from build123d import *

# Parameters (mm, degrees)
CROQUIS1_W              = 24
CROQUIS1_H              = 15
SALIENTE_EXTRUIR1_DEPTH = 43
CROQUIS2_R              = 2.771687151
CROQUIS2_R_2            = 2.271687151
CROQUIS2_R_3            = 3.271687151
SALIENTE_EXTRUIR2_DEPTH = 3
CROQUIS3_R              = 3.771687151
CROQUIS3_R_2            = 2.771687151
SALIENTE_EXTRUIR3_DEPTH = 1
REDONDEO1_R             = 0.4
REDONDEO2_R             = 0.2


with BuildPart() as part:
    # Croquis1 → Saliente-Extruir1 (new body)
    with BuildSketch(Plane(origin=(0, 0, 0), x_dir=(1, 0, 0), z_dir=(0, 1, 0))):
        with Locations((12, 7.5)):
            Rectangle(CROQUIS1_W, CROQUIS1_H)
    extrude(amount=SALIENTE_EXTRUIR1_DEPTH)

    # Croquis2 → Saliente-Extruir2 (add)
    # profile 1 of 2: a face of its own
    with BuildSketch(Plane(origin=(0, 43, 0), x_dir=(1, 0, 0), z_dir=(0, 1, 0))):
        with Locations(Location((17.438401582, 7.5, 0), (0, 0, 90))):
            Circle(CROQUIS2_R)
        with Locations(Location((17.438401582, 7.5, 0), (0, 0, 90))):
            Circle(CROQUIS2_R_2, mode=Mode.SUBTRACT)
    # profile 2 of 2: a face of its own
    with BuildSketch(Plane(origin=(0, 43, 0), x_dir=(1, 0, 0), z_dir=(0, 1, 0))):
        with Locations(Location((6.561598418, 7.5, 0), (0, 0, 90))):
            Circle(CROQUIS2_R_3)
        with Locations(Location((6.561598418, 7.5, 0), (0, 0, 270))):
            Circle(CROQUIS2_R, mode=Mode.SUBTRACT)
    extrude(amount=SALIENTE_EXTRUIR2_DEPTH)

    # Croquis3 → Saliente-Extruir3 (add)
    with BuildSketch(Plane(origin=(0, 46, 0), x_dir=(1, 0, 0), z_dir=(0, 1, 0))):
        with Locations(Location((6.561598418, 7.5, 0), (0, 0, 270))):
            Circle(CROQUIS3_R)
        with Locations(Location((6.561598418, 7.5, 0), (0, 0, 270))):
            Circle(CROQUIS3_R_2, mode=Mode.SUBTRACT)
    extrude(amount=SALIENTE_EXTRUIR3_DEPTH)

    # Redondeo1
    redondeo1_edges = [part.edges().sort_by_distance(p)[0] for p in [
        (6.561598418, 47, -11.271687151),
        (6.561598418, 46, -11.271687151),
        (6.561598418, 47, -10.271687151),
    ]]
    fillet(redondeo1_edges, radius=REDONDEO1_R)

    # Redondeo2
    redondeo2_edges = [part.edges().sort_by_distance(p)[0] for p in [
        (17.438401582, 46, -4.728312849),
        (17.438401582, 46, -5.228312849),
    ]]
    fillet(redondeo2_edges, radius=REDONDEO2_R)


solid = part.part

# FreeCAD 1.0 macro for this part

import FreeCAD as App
import Part
import Sketcher
from FreeCAD import Vector
Q = App.Units.Quantity


def edges_at(feature, points):
    """Names of the edges that pass closest to the given points."""
    edges = feature.Shape.Edges
    near = lambda p: min(range(len(edges)), key=lambda i: edges[i].distToShape(Part.Vertex(*p))[0])
    return sorted({f"Edge{near(p) + 1}" for p in points})

doc = App.newDocument("Part")
params = doc.addObject("Spreadsheet::Sheet", "Params")
for row, (alias, value) in enumerate([
    ("sketch1_width", "24 mm"),
    ("sketch1_height", "15 mm"),
    ("pad1_length", "43 mm"),
    ("pad2_length", "3 mm"),
    ("pad3_length", "1 mm"),
    ("fillet_radius", "0.4 mm"),
    ("fillet2_radius", "0.2 mm"),
], start=1):
    params.set(f"A{row}", alias)
    params.set(f"B{row}", "=" + value)
    params.setAlias(f"B{row}", alias)

body = doc.addObject("PartDesign::Body", "Body")

# Sketch on XZ plane
sketch1 = doc.addObject("Sketcher::SketchObject", "Sketch")
body.addObject(sketch1)
sketch1.AttachmentSupport = (doc.XZ_Plane, [""])
sketch1.MapMode = "FlatFace"
sketch1.addGeometry(Part.LineSegment(Vector(0, -15, 0), Vector(0, 0, 0)), False)
sketch1.addGeometry(Part.LineSegment(Vector(0, 0, 0), Vector(24, 0, 0)), False)
sketch1.addGeometry(Part.LineSegment(Vector(24, 0, 0), Vector(24, -15, 0)), False)
sketch1.addGeometry(Part.LineSegment(Vector(24, -15, 0), Vector(0, -15, 0)), False)
sketch1.addConstraint(Sketcher.Constraint("Coincident", 0, 2, 1, 1))
sketch1.addConstraint(Sketcher.Constraint("Coincident", 1, 2, 2, 1))
sketch1.addConstraint(Sketcher.Constraint("Coincident", 2, 2, 3, 1))
sketch1.addConstraint(Sketcher.Constraint("Coincident", 3, 2, 0, 1))
sketch1.addConstraint(Sketcher.Constraint("Vertical", 0))
sketch1.addConstraint(Sketcher.Constraint("Horizontal", 1))
sketch1.addConstraint(Sketcher.Constraint("Vertical", 2))
sketch1.addConstraint(Sketcher.Constraint("Horizontal", 3))
sketch1.addConstraint(Sketcher.Constraint("Coincident", 0, 2, -1, 1))
sketch1.addConstraint(Sketcher.Constraint("DistanceX", 1, 1, 1, 2, Q("24 mm")))
sketch1.addConstraint(Sketcher.Constraint("DistanceY", 0, 1, 0, 2, Q("15 mm")))
sketch1.setExpression("Constraints[9]", "Params.sketch1_width")
sketch1.setExpression("Constraints[10]", "Params.sketch1_height")
pad1 = doc.addObject("PartDesign::Pad", "Pad")
body.addObject(pad1)
pad1.Profile = sketch1
pad1.setExpression("Length", "Params.pad1_length")
pad1.Reversed = True

# Sketch on XZ plane
sketch2 = doc.addObject("Sketcher::SketchObject", "Sketch001")
body.addObject(sketch2)
sketch2.AttachmentSupport = (doc.XZ_Plane, [""])
sketch2.MapMode = "FlatFace"
sketch2.AttachmentOffset = App.Placement(Vector(0, 0, -43), App.Rotation())
sketch2.addGeometry(Part.Circle(Vector(17.438402, -7.5, 0), Vector(0, 0, 1), 2.771687), False)
sketch2.addGeometry(Part.Circle(Vector(17.438402, -7.5, 0), Vector(0, 0, 1), 2.271687), False)
sketch2.addGeometry(Part.Circle(Vector(6.561598, -7.5, 0), Vector(0, 0, 1), 3.271687), False)
sketch2.addGeometry(Part.Circle(Vector(6.561598, -7.5, 0), Vector(0, 0, 1), 2.771687), False)
sketch2.addConstraint(Sketcher.Constraint("Coincident", 1, 3, 0, 3))
sketch2.addConstraint(Sketcher.Constraint("Coincident", 3, 3, 2, 3))
sketch2.addConstraint(Sketcher.Constraint("Equal", 0, 3))
sketch2.addConstraint(Sketcher.Constraint("Horizontal", 1, 3, 2, 3))
sketch2.addConstraint(Sketcher.Constraint("DistanceY", 0, 3, -1, 1, Q("7.5 mm")))
sketch2.addConstraint(Sketcher.Constraint("Diameter", 0, Q("5.543374 mm")))
sketch2.addConstraint(Sketcher.Constraint("Diameter", 1, Q("4.543374 mm")))
sketch2.addConstraint(Sketcher.Constraint("Diameter", 2, Q("6.543374 mm")))
sketch2.addConstraint(Sketcher.Constraint("DistanceX", -1, 1, 0, 3, Q("17.438402 mm")))
sketch2.addConstraint(Sketcher.Constraint("DistanceX", -1, 1, 2, 3, Q("6.561598 mm")))
pad2 = doc.addObject("PartDesign::Pad", "Pad001")
body.addObject(pad2)
pad2.Profile = sketch2
pad2.setExpression("Length", "Params.pad2_length")
pad2.Reversed = True

# Sketch on XZ plane
sketch3 = doc.addObject("Sketcher::SketchObject", "Sketch002")
body.addObject(sketch3)
sketch3.AttachmentSupport = (doc.XZ_Plane, [""])
sketch3.MapMode = "FlatFace"
sketch3.AttachmentOffset = App.Placement(Vector(0, 0, -46), App.Rotation())
sketch3.addGeometry(Part.Circle(Vector(6.561598, -7.5, 0), Vector(0, 0, 1), 3.771687), False)
sketch3.addGeometry(Part.Circle(Vector(6.561598, -7.5, 0), Vector(0, 0, 1), 2.771687), False)
sketch3.addConstraint(Sketcher.Constraint("Coincident", 1, 3, 0, 3))
sketch3.addConstraint(Sketcher.Constraint("DistanceY", 0, 3, -1, 1, Q("7.5 mm")))
sketch3.addConstraint(Sketcher.Constraint("Diameter", 0, Q("7.543374 mm")))
sketch3.addConstraint(Sketcher.Constraint("Diameter", 1, Q("5.543374 mm")))
sketch3.addConstraint(Sketcher.Constraint("DistanceX", -1, 1, 0, 3, Q("6.561598 mm")))
pad3 = doc.addObject("PartDesign::Pad", "Pad002")
body.addObject(pad3)
pad3.Profile = sketch3
pad3.setExpression("Length", "Params.pad3_length")
pad3.Reversed = True
doc.recompute()

fillet = doc.addObject("PartDesign::Fillet", "Fillet")
body.addObject(fillet)
fillet.Base = (pad3, edges_at(pad3, [(6.562, 47, -11.272), (6.562, 46, -11.272), (6.562, 47, -10.272)]))
fillet.setExpression("Radius", "Params.fillet_radius")
doc.recompute()

fillet2 = doc.addObject("PartDesign::Fillet", "Fillet001")
body.addObject(fillet2)
fillet2.Base = (fillet, edges_at(fillet, [(17.438, 46, -4.728), (17.438, 46, -5.228)]))
fillet2.setExpression("Radius", "Params.fillet2_radius")

doc.recompute()
